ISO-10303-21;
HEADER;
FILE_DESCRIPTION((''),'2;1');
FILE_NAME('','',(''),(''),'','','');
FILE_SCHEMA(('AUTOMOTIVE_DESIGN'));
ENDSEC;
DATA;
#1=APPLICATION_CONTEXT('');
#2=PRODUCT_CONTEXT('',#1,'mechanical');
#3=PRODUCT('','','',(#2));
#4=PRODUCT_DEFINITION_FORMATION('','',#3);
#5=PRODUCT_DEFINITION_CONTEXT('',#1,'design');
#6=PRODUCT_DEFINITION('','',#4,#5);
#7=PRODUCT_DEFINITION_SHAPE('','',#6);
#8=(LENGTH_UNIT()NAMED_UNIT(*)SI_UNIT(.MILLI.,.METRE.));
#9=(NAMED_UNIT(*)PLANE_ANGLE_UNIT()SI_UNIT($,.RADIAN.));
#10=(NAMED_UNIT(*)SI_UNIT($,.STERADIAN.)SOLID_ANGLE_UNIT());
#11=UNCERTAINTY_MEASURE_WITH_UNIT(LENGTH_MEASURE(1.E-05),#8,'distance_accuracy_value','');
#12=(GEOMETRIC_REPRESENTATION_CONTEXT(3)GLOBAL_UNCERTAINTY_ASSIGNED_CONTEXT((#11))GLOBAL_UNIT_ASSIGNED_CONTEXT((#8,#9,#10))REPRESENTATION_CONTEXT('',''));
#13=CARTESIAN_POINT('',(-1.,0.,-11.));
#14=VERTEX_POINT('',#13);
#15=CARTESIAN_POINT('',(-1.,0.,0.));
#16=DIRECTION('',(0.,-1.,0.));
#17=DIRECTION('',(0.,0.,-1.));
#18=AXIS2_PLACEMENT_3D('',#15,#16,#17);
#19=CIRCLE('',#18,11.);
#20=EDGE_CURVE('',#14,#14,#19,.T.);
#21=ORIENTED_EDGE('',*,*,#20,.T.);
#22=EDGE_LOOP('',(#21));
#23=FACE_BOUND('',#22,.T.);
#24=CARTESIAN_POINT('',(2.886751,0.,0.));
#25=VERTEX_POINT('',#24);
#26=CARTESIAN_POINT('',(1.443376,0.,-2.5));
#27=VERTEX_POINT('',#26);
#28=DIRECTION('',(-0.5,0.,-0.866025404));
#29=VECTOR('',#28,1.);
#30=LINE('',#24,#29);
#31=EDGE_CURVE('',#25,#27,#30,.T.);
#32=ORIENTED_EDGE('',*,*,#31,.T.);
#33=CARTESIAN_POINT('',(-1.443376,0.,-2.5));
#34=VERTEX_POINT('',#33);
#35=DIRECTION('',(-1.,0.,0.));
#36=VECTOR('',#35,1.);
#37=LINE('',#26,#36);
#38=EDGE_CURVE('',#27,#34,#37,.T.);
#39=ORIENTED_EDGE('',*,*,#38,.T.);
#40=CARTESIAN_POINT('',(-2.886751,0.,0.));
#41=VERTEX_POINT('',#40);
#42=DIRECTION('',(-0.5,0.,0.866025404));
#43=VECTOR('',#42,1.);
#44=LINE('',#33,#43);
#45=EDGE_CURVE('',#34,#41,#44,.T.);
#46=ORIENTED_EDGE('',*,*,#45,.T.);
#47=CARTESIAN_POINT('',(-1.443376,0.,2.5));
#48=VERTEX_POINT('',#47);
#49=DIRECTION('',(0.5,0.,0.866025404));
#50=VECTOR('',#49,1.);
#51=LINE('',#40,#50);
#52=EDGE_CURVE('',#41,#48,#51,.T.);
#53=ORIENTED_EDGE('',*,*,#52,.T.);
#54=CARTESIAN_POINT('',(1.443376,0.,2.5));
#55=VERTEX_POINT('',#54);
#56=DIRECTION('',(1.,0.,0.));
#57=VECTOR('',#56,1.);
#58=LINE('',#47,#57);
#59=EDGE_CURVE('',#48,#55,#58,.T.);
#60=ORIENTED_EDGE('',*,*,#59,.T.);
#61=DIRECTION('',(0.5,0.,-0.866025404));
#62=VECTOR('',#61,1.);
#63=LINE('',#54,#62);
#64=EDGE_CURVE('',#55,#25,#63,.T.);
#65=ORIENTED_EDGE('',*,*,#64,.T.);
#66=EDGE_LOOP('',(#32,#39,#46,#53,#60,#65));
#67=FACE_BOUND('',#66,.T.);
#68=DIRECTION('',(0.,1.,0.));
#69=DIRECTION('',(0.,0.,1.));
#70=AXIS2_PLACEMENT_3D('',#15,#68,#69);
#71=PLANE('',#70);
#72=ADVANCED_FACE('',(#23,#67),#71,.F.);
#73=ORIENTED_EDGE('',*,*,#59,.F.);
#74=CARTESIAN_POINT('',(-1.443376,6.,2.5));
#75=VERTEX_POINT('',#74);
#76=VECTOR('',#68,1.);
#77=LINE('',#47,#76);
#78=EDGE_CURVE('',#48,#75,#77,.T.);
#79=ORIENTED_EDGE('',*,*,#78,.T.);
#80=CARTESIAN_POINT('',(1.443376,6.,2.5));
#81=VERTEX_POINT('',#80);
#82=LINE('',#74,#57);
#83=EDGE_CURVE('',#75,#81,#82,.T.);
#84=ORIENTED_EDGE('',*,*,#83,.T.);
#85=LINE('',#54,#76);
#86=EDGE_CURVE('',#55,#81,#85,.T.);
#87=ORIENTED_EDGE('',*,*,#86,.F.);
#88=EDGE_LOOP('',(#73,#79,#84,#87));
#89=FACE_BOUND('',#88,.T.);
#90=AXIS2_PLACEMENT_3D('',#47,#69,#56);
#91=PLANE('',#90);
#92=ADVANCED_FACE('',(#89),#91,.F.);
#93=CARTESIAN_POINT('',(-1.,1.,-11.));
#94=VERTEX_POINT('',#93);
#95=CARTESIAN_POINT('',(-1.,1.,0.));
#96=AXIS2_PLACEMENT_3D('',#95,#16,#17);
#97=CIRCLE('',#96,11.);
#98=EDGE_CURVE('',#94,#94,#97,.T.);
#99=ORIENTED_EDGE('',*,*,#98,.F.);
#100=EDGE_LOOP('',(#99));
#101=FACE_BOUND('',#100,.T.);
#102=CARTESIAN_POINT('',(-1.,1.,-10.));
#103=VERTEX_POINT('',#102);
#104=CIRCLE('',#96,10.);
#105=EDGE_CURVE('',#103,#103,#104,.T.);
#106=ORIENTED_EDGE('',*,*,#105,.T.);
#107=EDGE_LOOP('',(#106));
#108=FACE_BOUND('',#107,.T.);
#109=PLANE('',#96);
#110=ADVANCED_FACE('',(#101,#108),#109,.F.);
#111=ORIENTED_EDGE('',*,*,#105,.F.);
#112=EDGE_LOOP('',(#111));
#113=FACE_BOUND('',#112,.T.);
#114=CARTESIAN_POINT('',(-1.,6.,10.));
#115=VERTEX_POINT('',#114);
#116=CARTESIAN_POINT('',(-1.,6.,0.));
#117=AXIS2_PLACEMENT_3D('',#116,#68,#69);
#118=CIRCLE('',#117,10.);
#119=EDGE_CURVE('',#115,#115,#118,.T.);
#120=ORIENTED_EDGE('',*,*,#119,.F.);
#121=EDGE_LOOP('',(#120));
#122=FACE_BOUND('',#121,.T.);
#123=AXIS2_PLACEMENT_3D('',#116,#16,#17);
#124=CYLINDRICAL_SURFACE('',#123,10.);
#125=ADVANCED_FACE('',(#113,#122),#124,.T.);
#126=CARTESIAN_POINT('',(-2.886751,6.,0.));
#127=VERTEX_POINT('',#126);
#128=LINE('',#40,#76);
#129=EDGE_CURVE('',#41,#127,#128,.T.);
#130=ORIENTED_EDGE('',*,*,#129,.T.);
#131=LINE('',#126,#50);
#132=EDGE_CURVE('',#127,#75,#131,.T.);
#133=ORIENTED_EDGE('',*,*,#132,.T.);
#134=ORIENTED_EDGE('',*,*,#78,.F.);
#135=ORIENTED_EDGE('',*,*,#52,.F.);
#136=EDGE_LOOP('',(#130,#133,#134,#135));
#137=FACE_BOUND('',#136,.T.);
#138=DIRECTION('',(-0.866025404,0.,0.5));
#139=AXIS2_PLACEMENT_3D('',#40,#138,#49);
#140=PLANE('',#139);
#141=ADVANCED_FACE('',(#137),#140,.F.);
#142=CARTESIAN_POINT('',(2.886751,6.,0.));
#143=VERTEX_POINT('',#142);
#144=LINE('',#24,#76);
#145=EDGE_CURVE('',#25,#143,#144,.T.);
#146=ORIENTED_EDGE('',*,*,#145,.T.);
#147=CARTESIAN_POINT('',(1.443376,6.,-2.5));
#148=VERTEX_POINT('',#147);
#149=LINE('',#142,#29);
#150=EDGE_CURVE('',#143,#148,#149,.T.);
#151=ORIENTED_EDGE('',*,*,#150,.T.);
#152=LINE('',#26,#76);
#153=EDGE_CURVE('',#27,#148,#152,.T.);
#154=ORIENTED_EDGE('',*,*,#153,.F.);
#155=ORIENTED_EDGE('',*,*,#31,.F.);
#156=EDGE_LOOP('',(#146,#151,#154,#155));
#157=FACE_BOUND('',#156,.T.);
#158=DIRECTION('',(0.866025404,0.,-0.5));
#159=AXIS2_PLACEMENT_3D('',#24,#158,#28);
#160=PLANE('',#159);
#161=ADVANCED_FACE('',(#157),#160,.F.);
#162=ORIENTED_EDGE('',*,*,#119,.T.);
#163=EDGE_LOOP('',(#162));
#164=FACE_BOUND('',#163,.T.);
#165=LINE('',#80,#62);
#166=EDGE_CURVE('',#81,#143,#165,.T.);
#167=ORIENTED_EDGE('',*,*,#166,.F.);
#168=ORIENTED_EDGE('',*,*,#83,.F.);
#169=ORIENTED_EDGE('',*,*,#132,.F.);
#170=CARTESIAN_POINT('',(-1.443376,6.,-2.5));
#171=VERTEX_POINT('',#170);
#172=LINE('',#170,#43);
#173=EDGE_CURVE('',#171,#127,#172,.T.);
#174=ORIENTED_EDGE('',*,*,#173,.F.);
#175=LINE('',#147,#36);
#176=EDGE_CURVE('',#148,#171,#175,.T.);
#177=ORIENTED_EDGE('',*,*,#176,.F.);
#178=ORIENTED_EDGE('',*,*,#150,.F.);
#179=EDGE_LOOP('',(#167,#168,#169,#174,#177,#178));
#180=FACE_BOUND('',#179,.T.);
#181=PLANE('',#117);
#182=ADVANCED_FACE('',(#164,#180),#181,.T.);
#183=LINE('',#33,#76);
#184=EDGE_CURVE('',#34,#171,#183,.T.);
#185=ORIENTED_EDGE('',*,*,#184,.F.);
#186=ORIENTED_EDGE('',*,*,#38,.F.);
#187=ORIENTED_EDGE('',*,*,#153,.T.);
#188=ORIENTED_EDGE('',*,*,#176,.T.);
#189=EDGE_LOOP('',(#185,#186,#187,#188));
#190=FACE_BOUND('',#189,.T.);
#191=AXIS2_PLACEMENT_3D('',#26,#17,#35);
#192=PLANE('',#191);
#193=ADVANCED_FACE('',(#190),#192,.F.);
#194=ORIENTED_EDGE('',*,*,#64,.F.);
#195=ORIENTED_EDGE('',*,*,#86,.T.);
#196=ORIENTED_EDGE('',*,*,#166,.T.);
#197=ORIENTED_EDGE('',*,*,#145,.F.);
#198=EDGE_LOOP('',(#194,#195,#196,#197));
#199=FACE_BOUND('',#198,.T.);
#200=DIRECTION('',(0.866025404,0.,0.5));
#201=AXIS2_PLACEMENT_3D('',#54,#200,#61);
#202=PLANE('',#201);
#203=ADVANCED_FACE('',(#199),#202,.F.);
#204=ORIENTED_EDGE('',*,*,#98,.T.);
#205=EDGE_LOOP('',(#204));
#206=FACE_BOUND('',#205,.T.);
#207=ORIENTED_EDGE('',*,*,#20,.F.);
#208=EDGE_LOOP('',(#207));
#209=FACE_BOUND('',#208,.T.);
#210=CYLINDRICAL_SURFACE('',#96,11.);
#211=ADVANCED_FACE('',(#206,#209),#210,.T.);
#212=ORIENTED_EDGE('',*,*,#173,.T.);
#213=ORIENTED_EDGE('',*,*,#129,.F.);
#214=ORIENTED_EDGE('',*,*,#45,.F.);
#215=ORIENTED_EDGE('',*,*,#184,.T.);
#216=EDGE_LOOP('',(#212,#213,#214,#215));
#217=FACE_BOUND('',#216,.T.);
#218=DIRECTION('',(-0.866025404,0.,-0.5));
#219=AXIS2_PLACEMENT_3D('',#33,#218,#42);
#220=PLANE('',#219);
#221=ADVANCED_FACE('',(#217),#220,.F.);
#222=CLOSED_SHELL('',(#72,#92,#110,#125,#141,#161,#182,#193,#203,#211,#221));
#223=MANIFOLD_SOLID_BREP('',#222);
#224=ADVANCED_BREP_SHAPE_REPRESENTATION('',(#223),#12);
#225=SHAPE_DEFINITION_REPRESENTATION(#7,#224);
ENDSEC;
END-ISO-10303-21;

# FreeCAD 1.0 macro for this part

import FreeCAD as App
import Part
import Sketcher
from FreeCAD import Vector
Q = App.Units.Quantity


def add_polygon(sketch, points):
    """Adds a closed chain of lines whose ends are joined by coincident constraints."""
    first, n = sketch.GeometryCount, len(points)
    for a, b in zip(points, points[1:] + points[:1]):
        sketch.addGeometry(Part.LineSegment(App.Vector(*a, 0), App.Vector(*b, 0)), False)
    for i in range(n):
        sketch.addConstraint(Sketcher.Constraint("Coincident", first + i, 2, first + (i + 1) % n, 1))

doc = App.newDocument("Part")
body = doc.addObject("PartDesign::Body", "Body")

# Sketch on XZ plane
sketch1 = body.newObject("Sketcher::SketchObject", "Sketch")
sketch1.AttachmentSupport = (doc.getObject("XZ_Plane"), [""])
sketch1.MapMode = "FlatFace"
sketch1.addGeometry(Part.Circle(Vector(-1, 0, 0), Vector(0, 0, 1), 10), False)
sketch1.addConstraint([
    Sketcher.Constraint("PointOnObject", 0, 3, -1),
    Sketcher.Constraint("Diameter", 0, Q("20 mm")),
    Sketcher.Constraint("DistanceX", 0, 3, -1, 1, Q("1 mm")),
])
pad1 = body.newObject("PartDesign::Pad", "Pad")
pad1.Profile = sketch1
pad1.Length = 6
pad1.Reversed = True

# Sketch on XZ plane
sketch2 = body.newObject("Sketcher::SketchObject", "Sketch001")
sketch2.AttachmentSupport = (doc.getObject("XZ_Plane"), [""])
sketch2.MapMode = "FlatFace"
sketch2.addGeometry(Part.Circle(Vector(-1, 0, 0), Vector(0, 0, 1), 11), False)
sketch2.addConstraint([
    Sketcher.Constraint("PointOnObject", 0, 3, -1),
    Sketcher.Constraint("Diameter", 0, Q("22 mm")),
    Sketcher.Constraint("DistanceX", 0, 3, -1, 1, Q("1 mm")),
])
pad2 = body.newObject("PartDesign::Pad", "Pad001")
pad2.Profile = sketch2
pad2.Length = 1
pad2.Reversed = True

# Sketch on XZ plane
sketch3 = body.newObject("Sketcher::SketchObject", "Sketch002")
sketch3.AttachmentSupport = (doc.getObject("XZ_Plane"), [""])
sketch3.MapMode = "FlatFace"
sketch3.AttachmentOffset = App.Placement(Vector(0, 0, -6), App.Rotation())
add_polygon(sketch3, [(2.9, 0), (1.4, -2.5), (-1.4, -2.5), (-2.9, 0), (-1.4, 2.5), (1.4, 2.5)])  # lines 0-5
sketch3.addConstraint([
    Sketcher.Constraint("Horizontal", 1),
    Sketcher.Constraint("Horizontal", 4),
    Sketcher.Constraint("Symmetric", 0, 2, 3, 2, -1, 1),
    Sketcher.Constraint("Symmetric", 2, 2, 5, 2, -1, 1),
    Sketcher.Constraint("PointOnObject", 2, 2, -1),
    Sketcher.Constraint("Parallel", 2, 5),
    Sketcher.Constraint("Vertical", 1, 2, 3, 2),
    Sketcher.Constraint("Angle", 0, Q("-120 deg")),
    Sketcher.Constraint("DistanceY", 1, 2, 3, 2, Q("5 mm")),
    Sketcher.Constraint("DistanceX", 1, 2, 1, 1, Q("2.886751 mm")),
])
pocket1 = body.newObject("PartDesign::Pocket", "Pocket")
pocket1.Profile = sketch3
pocket1.Type = "ThroughAll"
pocket1.Reversed = True

doc.recompute()
